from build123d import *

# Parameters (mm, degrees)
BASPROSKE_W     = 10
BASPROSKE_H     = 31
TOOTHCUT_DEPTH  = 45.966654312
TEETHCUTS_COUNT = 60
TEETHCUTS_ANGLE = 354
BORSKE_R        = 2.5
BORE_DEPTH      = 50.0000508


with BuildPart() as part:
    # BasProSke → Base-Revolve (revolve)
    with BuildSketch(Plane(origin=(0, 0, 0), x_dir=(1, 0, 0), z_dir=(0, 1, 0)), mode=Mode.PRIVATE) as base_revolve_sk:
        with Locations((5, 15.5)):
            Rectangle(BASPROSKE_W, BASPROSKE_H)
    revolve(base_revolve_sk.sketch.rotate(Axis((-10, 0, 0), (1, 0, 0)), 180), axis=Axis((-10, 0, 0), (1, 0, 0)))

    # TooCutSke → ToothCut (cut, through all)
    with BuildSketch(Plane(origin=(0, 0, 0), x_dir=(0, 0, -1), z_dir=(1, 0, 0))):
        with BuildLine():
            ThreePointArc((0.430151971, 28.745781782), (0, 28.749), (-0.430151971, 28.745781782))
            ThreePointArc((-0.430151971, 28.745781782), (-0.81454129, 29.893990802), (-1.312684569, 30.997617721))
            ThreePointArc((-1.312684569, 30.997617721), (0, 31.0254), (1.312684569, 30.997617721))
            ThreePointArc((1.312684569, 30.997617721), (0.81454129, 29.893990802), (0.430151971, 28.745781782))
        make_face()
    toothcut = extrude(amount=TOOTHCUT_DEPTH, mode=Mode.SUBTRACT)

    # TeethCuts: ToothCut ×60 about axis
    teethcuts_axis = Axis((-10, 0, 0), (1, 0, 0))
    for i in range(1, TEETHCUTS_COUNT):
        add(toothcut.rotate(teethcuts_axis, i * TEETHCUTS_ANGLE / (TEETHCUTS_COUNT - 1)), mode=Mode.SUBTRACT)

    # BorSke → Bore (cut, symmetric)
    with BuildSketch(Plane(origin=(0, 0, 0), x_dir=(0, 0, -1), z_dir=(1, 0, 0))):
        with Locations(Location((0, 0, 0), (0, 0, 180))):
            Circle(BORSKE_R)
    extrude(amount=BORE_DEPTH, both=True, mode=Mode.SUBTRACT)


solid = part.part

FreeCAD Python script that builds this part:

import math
import FreeCAD as App
import Part
import Sketcher

V = App.Vector
Q = App.Units.Quantity


def add_polygon(sketch, points):
    """Adds a closed chain of lines whose ends are joined by coincident constraints."""
    first, n = sketch.GeometryCount, len(points)
    for a, b in zip(points, points[1:] + points[:1]):
        sketch.addGeometry(Part.LineSegment(App.Vector(*a, 0), App.Vector(*b, 0)), False)
    for i in range(n):
        sketch.addConstraint(Sketcher.Constraint("Coincident", first + i, 2, first + (i + 1) % n, 1))

doc = App.newDocument("Part")
body = doc.addObject("PartDesign::Body", "Body")

# Sketch on XZ plane
sketch1 = doc.addObject("Sketcher::SketchObject", "Sketch")
body.addObject(sketch1)
sketch1.AttachmentSupport = (doc.XZ_Plane, [""])
sketch1.MapMode = "FlatFace"
add_polygon(sketch1, [(0, -31), (0, 0), (10, 0), (10, -31)])  # lines 0-3
sketch1.addConstraint([
    Sketcher.Constraint("Vertical", 0),
    Sketcher.Constraint("Horizontal", 1),
    Sketcher.Constraint("Vertical", 2),
    Sketcher.Constraint("Horizontal", 3),
    Sketcher.Constraint("Coincident", 0, 2, -1, 1),
    Sketcher.Constraint("DistanceX", 1, 1, 1, 2, Q("10 mm")),
    Sketcher.Constraint("DistanceY", 0, 1, 0, 2, Q("31 mm")),
])
revolution = doc.addObject("PartDesign::Revolution", "Revolution")
body.addObject(revolution)
revolution.Profile = sketch1
revolution.ReferenceAxis = (sketch1, ["H_Axis"])
revolution.Angle = 360

# Sketch on YZ plane
sketch2 = doc.addObject("Sketcher::SketchObject", "Sketch001")
body.addObject(sketch2)
sketch2.AttachmentSupport = (doc.YZ_Plane, [""])
sketch2.MapMode = "FlatFace"
sketch2.addGeometry([
    Part.ArcOfCircle(Part.Circle(V(0, 0, 0), V(0, 0, 1), 28.7), math.radians(-0.86), math.radians(0.86)),
    Part.ArcOfCircle(Part.Circle(V(25.5, -12, 0), V(0, 0, 1), 12), math.radians(62.82), math.radians(74.38)),
    Part.ArcOfCircle(Part.Circle(V(0, 0, 0), V(0, 0, 1), 31), math.radians(-2.42), math.radians(2.42)),
    Part.ArcOfCircle(Part.Circle(V(25.5, 12, 0), V(0, 0, 1), 12), math.radians(-74.38), math.radians(-62.82)),
], False)
sketch2.addConstraint([
    Sketcher.Constraint("Coincident", 0, 1, 1, 2),
    Sketcher.Constraint("Coincident", 1, 1, 2, 1),
    Sketcher.Constraint("Coincident", 2, 2, 3, 2),
    Sketcher.Constraint("Coincident", 3, 1, 0, 2),
    Sketcher.Constraint("Coincident", 0, 3, -1, 1),
    Sketcher.Constraint("Coincident", 2, 3, -1, 1),
    Sketcher.Constraint("Equal", 1, 3),
    Sketcher.Constraint("Symmetric", 1, 3, 3, 3, -1),
    Sketcher.Constraint("Radius", 1, Q("12 mm")),
    Sketcher.Constraint("Radius", 2, Q("31.0254 mm")),
    Sketcher.Constraint("Radius", 0, Q("28.748996 mm")),
    Sketcher.Constraint("DistanceY", 1, 3, -1, 1, Q("11.98713 mm")),
    Sketcher.Constraint("DistanceY", 0, 1, -1, 1, Q("0.430152 mm")),
])
pocket1 = doc.addObject("PartDesign::Pocket", "Pocket")
body.addObject(pocket1)
pocket1.Profile = sketch2
pocket1.Type = "ThroughAll"
pocket1.Reversed = True
doc.recompute()

polarpattern = doc.addObject("PartDesign::PolarPattern", "PolarPattern")
body.addObject(polarpattern)
polarpattern.Originals = [pocket1]
polarpattern.Axis = (doc.X_Axis, [""])
polarpattern.Angle = 360
polarpattern.Occurrences = 60
body.Tip = polarpattern

# Sketch on YZ plane
sketch3 = doc.addObject("Sketcher::SketchObject", "Sketch002")
body.addObject(sketch3)
sketch3.AttachmentSupport = (doc.YZ_Plane, [""])
sketch3.MapMode = "FlatFace"
sketch3.addGeometry(Part.Circle(V(0, 0, 0), V(0, 0, 1), 2.5), False)
sketch3.addConstraint([
    Sketcher.Constraint("Coincident", 0, 3, -1, 1),
    Sketcher.Constraint("Diameter", 0, Q("5 mm")),
])
pocket2 = doc.addObject("PartDesign::Pocket", "Pocket001")
body.addObject(pocket2)
pocket2.Profile = sketch3
pocket2.Length = 100.000102
pocket2.Midplane = True

doc.recompute()
